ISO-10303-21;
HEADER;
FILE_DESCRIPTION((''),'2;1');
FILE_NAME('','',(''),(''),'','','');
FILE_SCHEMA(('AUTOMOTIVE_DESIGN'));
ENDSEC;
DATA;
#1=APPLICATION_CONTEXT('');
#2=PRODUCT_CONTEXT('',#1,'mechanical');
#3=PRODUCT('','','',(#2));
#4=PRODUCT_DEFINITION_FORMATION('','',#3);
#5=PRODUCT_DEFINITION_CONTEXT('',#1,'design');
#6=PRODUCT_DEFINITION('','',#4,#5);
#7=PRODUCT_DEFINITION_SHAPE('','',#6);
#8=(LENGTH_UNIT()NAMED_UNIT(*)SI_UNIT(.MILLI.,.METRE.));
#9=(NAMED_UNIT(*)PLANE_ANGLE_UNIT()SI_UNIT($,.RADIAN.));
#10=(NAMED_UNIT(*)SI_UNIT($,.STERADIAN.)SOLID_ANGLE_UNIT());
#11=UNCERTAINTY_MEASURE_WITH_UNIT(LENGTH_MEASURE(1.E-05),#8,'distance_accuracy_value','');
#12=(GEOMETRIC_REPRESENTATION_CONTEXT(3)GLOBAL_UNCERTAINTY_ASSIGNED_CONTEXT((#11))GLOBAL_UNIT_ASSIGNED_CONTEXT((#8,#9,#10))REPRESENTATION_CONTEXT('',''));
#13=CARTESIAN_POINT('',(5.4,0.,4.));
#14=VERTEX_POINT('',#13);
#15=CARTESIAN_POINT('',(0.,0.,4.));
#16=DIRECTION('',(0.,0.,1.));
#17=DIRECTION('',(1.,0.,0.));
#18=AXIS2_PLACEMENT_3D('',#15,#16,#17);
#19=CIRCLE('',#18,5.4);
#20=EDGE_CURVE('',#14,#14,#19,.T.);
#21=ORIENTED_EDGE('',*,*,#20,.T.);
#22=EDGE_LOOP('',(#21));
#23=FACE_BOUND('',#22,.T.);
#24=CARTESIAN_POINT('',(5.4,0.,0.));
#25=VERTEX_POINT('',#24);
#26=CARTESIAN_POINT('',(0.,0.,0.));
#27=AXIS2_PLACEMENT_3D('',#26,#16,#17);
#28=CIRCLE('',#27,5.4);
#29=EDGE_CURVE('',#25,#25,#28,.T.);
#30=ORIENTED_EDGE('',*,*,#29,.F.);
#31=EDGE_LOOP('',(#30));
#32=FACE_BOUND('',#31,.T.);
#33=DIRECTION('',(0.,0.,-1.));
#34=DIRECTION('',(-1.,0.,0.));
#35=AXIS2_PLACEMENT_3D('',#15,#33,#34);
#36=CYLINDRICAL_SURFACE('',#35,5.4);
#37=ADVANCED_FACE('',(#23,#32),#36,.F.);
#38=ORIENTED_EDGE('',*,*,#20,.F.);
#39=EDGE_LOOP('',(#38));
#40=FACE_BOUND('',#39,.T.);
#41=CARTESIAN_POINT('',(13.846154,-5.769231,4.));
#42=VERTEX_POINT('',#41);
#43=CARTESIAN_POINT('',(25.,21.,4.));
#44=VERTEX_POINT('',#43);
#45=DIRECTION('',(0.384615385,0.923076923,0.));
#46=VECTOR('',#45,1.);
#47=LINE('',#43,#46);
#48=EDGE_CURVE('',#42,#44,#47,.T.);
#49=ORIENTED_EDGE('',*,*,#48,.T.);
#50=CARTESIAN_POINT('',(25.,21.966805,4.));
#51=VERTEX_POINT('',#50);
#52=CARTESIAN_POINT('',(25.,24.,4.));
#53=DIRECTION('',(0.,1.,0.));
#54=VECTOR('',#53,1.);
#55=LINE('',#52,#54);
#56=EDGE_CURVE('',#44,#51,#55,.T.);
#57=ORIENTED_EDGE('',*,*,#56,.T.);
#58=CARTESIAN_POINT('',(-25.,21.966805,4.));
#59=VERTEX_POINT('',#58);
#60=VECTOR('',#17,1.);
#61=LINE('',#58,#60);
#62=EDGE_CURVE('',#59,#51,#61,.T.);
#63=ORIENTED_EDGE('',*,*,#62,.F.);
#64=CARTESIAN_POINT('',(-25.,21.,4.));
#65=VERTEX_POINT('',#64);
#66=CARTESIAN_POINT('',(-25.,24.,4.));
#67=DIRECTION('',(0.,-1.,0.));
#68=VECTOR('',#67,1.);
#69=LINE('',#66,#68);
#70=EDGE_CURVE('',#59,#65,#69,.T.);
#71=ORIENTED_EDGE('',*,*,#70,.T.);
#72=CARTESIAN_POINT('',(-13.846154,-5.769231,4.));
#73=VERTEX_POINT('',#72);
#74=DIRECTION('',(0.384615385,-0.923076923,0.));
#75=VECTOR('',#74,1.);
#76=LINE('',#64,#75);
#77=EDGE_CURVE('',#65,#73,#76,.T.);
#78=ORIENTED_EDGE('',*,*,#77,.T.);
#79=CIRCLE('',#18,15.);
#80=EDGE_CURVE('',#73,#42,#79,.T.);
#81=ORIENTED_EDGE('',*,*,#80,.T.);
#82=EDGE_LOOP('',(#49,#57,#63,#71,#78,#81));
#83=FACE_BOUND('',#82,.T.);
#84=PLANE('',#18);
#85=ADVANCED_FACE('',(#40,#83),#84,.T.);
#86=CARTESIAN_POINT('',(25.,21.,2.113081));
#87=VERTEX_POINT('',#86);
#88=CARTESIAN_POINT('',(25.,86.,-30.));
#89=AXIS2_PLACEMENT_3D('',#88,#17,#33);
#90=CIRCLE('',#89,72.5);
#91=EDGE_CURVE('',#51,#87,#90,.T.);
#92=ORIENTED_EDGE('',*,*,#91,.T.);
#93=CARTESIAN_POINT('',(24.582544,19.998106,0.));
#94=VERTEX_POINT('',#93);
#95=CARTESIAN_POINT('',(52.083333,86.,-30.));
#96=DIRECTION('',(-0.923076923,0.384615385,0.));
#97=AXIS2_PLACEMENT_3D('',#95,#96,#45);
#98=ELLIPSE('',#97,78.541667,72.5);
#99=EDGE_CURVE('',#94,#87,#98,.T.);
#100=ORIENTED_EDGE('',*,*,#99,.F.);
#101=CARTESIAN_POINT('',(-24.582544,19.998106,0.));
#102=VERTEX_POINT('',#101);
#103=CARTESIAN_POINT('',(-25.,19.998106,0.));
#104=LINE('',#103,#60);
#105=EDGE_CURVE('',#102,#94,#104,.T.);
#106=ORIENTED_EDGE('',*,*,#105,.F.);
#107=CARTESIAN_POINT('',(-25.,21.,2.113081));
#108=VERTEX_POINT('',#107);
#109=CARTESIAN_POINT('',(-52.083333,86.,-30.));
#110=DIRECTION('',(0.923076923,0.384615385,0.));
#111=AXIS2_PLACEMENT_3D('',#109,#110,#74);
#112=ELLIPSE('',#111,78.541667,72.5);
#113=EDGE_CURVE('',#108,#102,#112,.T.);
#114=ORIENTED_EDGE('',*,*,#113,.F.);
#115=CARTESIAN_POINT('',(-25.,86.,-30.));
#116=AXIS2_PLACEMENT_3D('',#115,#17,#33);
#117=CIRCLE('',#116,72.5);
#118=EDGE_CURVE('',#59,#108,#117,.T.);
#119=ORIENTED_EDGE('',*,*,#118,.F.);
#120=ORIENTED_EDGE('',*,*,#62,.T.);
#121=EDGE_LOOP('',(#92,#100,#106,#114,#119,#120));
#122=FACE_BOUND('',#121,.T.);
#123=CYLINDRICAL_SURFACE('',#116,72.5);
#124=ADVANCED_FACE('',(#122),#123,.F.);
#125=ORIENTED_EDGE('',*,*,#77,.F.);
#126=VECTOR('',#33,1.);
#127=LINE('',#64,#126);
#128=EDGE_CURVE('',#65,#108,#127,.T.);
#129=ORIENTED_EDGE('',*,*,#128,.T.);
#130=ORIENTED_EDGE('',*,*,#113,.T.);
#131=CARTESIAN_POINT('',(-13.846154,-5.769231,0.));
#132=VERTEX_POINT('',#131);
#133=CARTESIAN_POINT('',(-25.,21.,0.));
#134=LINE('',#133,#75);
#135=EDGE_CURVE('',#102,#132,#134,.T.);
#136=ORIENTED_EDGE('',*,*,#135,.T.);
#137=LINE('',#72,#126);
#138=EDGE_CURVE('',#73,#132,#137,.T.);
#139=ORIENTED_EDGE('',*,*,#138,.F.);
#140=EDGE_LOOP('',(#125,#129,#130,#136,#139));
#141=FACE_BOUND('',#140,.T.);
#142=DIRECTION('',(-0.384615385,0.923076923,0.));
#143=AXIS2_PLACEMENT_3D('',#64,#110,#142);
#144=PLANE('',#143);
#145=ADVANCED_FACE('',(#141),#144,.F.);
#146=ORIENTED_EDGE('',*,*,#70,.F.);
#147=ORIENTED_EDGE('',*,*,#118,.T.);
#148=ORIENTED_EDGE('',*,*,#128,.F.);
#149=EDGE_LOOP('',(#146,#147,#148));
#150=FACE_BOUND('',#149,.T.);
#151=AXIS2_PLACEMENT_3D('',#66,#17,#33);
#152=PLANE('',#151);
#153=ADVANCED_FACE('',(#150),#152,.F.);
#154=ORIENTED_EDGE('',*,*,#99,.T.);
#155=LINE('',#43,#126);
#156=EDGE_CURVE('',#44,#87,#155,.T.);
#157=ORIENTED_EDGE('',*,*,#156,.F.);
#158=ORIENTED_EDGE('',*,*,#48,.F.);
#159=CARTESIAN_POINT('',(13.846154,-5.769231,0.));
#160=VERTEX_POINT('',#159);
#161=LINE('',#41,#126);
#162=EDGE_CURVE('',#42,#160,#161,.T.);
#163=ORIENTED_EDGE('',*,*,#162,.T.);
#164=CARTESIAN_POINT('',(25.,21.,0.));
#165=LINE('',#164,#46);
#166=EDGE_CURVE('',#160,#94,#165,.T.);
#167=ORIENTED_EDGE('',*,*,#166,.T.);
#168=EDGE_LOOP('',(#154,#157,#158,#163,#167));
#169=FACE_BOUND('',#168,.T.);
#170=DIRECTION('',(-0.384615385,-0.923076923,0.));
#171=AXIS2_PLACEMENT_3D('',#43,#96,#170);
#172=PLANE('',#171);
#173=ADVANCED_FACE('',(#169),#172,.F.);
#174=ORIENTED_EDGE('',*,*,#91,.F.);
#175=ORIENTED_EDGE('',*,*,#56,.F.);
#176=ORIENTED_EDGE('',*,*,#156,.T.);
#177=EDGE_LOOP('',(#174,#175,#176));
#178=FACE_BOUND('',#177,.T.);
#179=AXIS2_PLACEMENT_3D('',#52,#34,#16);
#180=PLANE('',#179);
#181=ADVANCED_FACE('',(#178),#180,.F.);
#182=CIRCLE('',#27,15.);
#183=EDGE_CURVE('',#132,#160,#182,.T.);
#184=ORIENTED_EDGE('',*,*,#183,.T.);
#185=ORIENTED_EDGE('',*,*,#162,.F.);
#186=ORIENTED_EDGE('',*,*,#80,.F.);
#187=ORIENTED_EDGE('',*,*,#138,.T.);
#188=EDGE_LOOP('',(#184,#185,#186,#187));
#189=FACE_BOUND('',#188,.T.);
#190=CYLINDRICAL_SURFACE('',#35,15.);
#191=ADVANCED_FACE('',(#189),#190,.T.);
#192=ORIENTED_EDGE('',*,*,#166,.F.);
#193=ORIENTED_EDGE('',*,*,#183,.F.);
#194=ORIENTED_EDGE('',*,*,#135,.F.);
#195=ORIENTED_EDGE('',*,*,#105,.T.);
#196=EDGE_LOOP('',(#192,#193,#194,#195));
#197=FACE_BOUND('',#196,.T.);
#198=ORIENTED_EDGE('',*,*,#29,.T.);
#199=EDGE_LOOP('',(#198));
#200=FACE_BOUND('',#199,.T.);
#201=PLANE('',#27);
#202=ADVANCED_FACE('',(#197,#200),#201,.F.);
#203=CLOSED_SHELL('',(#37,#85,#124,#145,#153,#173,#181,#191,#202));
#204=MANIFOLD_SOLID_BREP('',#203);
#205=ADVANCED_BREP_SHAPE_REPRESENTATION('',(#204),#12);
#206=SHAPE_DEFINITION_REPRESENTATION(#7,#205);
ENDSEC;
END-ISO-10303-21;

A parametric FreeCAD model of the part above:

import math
import FreeCAD as App
import Part
import Sketcher
from FreeCAD import Vector

doc = App.newDocument("Part")
body = doc.addObject("PartDesign::Body", "Body")

sketch1 = body.newObject("Sketcher::SketchObject", "Sketch")
sketch1.AttachmentSupport = (doc.getObject("XY_Plane"), [""])
sketch1.MapMode = "FlatFace"
sketch1.addGeometry([
    Part.LineSegment(Vector(25, 24, 0), Vector(-25, 24, 0)),
    Part.LineSegment(Vector(-25, 24, 0), Vector(-25, 21, 0)),
    Part.LineSegment(Vector(-25, 21, 0), Vector(-13.846154, -5.769231, 0)),
    Part.ArcOfCircle(Part.Circle(Vector(0, 0, 0), Vector(0, 0, 1), 15), math.radians(-157.380135), math.radians(-22.619865)),
    Part.LineSegment(Vector(13.846154, -5.769231, 0), Vector(25, 21, 0)),
    Part.LineSegment(Vector(25, 21, 0), Vector(25, 24, 0)),
    Part.Circle(Vector(0, 0, 0), Vector(0, 0, 1), 5.4),
], False)
sketch1.addConstraint([
    Sketcher.Constraint("Coincident", 0, 2, 1, 1),
    Sketcher.Constraint("Coincident", 1, 2, 2, 1),
    Sketcher.Constraint("Tangent", 2, 2, 3, 1),
    Sketcher.Constraint("Tangent", 3, 2, 4, 1),
    Sketcher.Constraint("Coincident", 4, 2, 5, 1),
    Sketcher.Constraint("Coincident", 5, 2, 0, 1),
    Sketcher.Constraint("Horizontal", 0),
    Sketcher.Constraint("Vertical", 1),
    Sketcher.Constraint("Vertical", 5),
    Sketcher.Constraint("Coincident", 3, 3, -1, 1),
    Sketcher.Constraint("Coincident", 6, 3, -1, 1),
    Sketcher.Constraint("Symmetric", 1, 2, 4, 2, -2),
    Sketcher.Constraint("Radius", 3, 15.0),
    Sketcher.Constraint("Diameter", 6, 10.8),
    Sketcher.Constraint("DistanceX", 0, 2, 0, 1, 50.0),
    Sketcher.Constraint("DistanceY", 1, 2, 1, 1, 3.0),
    Sketcher.Constraint("Distance", 2, 29.0),
])
pad1 = body.newObject("PartDesign::Pad", "Pad")
pad1.Profile = sketch1
pad1.Length = 4

sketch2 = body.newObject("Sketcher::SketchObject", "Sketch001")
sketch2.AttachmentSupport = (doc.getObject("YZ_Plane"), [""])
sketch2.MapMode = "FlatFace"
sketch2.addGeometry(Part.Circle(Vector(86, -30, 0), Vector(0, 0, 1), 72.5), False)
sketch2.addConstraint([
    Sketcher.Constraint("Diameter", 0, 145.0),
    Sketcher.Constraint("DistanceX", -1, 1, 0, 3, 86.0),
    Sketcher.Constraint("DistanceY", 0, 3, -1, 1, 30.0),
])
pocket1 = body.newObject("PartDesign::Pocket", "Pocket")
pocket1.Profile = sketch2
pocket1.Type = "ThroughAll"
pocket1.Midplane = True

doc.recompute()
